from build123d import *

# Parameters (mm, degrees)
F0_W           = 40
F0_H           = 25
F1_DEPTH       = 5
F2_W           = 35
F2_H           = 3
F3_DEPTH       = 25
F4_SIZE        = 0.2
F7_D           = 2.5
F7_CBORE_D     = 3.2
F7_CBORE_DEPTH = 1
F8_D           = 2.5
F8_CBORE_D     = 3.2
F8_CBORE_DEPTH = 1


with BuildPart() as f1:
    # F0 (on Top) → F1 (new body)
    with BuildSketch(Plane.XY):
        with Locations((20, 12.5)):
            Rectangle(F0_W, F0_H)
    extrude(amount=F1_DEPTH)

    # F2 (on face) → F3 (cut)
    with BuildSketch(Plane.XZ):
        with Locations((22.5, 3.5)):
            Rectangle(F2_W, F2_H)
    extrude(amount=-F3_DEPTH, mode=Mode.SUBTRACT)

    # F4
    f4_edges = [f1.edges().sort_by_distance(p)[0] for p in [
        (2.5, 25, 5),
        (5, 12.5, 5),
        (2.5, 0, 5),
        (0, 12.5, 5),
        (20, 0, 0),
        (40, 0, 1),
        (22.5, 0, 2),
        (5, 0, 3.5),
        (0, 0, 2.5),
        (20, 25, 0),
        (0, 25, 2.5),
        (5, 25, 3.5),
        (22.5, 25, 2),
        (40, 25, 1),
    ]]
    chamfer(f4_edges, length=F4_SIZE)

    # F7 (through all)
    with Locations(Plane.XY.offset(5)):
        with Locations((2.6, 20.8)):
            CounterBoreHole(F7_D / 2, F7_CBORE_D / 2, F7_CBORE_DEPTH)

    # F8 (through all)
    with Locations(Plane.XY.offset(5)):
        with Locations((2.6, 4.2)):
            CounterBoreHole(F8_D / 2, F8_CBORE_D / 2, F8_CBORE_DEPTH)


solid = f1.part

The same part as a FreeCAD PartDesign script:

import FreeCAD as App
import Part
import Sketcher

V = App.Vector
Q = App.Units.Quantity


def edges_at(feature, points):
    """Names of the edges that pass closest to the given points."""
    edges = feature.Shape.Edges
    near = lambda p: min(range(len(edges)), key=lambda i: edges[i].distToShape(Part.Vertex(*p))[0])
    return sorted({f"Edge{near(p) + 1}" for p in points})

doc = App.newDocument("Part")
body = doc.addObject("PartDesign::Body", "Body")

# Sketch on XY plane
sketch1 = doc.addObject("Sketcher::SketchObject", "Sketch")
body.addObject(sketch1)
sketch1.AttachmentSupport = (doc.XY_Plane, [""])
sketch1.MapMode = "FlatFace"
sketch1.addGeometry([
    Part.LineSegment(V(0, 25, 0), V(0, 0, 0)),
    Part.LineSegment(V(0, 0, 0), V(40, 0, 0)),
    Part.LineSegment(V(40, 0, 0), V(40, 25, 0)),
    Part.LineSegment(V(40, 25, 0), V(0, 25, 0)),
], False)
sketch1.addConstraint([
    Sketcher.Constraint("Coincident", 0, 2, 1, 1),
    Sketcher.Constraint("Coincident", 1, 2, 2, 1),
    Sketcher.Constraint("Coincident", 2, 2, 3, 1),
    Sketcher.Constraint("Coincident", 3, 2, 0, 1),
    Sketcher.Constraint("Vertical", 0),
    Sketcher.Constraint("Horizontal", 1),
    Sketcher.Constraint("Vertical", 2),
    Sketcher.Constraint("Horizontal", 3),
    Sketcher.Constraint("Coincident", 0, 2, -1, 1),
    Sketcher.Constraint("DistanceX", 1, 1, 1, 2, Q("40 mm")),
    Sketcher.Constraint("DistanceY", 0, 2, 0, 1, Q("25 mm")),
])
pad1 = doc.addObject("PartDesign::Pad", "Pad")
body.addObject(pad1)
pad1.Profile = sketch1
pad1.Length = 5

# Sketch on XZ plane
sketch2 = doc.addObject("Sketcher::SketchObject", "Sketch001")
body.addObject(sketch2)
sketch2.AttachmentSupport = (doc.XZ_Plane, [""])
sketch2.MapMode = "FlatFace"
sketch2.addGeometry([
    Part.LineSegment(V(5, 5, 0), V(5, 2, 0)),
    Part.LineSegment(V(5, 2, 0), V(40, 2, 0)),
    Part.LineSegment(V(40, 2, 0), V(40, 5, 0)),
    Part.LineSegment(V(40, 5, 0), V(5, 5, 0)),
], False)
sketch2.addConstraint([
    Sketcher.Constraint("Coincident", 0, 2, 1, 1),
    Sketcher.Constraint("Coincident", 1, 2, 2, 1),
    Sketcher.Constraint("Coincident", 2, 2, 3, 1),
    Sketcher.Constraint("Coincident", 3, 2, 0, 1),
    Sketcher.Constraint("Vertical", 0),
    Sketcher.Constraint("Horizontal", 1),
    Sketcher.Constraint("Vertical", 2),
    Sketcher.Constraint("Horizontal", 3),
    Sketcher.Constraint("DistanceX", 1, 1, 1, 2, Q("35 mm")),
    Sketcher.Constraint("DistanceY", 0, 2, 0, 1, Q("3 mm")),
    Sketcher.Constraint("DistanceX", -1, 1, 0, 2, Q("5 mm")),
    Sketcher.Constraint("DistanceY", -1, 1, 0, 2, Q("2 mm")),
])
pocket1 = doc.addObject("PartDesign::Pocket", "Pocket")
body.addObject(pocket1)
pocket1.Profile = sketch2
pocket1.Length = 25
doc.recompute()

chamfer = doc.addObject("PartDesign::Chamfer", "Chamfer")
body.addObject(chamfer)
chamfer.Base = (pocket1, edges_at(pocket1, [
    (2.5, 25, 5),
    (5, 12.5, 5),
    (2.5, 0, 5),
    (0, 12.5, 5),
    (20, 0, 0),
    (40, 0, 1),
    (22.5, 0, 2),
    (5, 0, 3.5),
    (0, 0, 2.5),
    (20, 25, 0),
    (0, 25, 2.5),
    (5, 25, 3.5),
    (22.5, 25, 2),
    (40, 25, 1),
]))
chamfer.Size = 0.2

# Sketch on XY plane
sketch3 = doc.addObject("Sketcher::SketchObject", "Sketch002")
body.addObject(sketch3)
sketch3.AttachmentSupport = (doc.XY_Plane, [""])
sketch3.MapMode = "FlatFace"
sketch3.AttachmentOffset = App.Placement(V(0, 0, 5), App.Rotation())
sketch3.addGeometry(Part.Circle(V(2.6, 20.8, 0), V(0, 0, 1), 1.2), False)
sketch3.addConstraint([
    Sketcher.Constraint("Diameter", 0, Q("2.5 mm")),
    Sketcher.Constraint("DistanceX", -1, 1, 0, 3, Q("2.6 mm")),
    Sketcher.Constraint("DistanceY", -1, 1, 0, 3, Q("20.8 mm")),
])
doc.recompute()
hole = doc.addObject("PartDesign::Hole", "Hole")
body.addObject(hole)
hole.Profile = sketch3
hole.ThreadType = "None"
hole.Diameter = 2.5
hole.DepthType = "ThroughAll"
hole.HoleCutType = "Counterbore"
hole.HoleCutDiameter = 3.2
hole.HoleCutDepth = 1

# Sketch on XY plane
sketch4 = doc.addObject("Sketcher::SketchObject", "Sketch003")
body.addObject(sketch4)
sketch4.AttachmentSupport = (doc.XY_Plane, [""])
sketch4.MapMode = "FlatFace"
sketch4.AttachmentOffset = App.Placement(V(0, 0, 5), App.Rotation())
sketch4.addGeometry(Part.Circle(V(2.6, 4.2, 0), V(0, 0, 1), 1.2), False)
sketch4.addConstraint([
    Sketcher.Constraint("Diameter", 0, Q("2.5 mm")),
    Sketcher.Constraint("DistanceX", -1, 1, 0, 3, Q("2.6 mm")),
    Sketcher.Constraint("DistanceY", -1, 1, 0, 3, Q("4.2 mm")),
])
doc.recompute()
hole2 = doc.addObject("PartDesign::Hole", "Hole001")
body.addObject(hole2)
hole2.Profile = sketch4
hole2.ThreadType = "None"
hole2.Diameter = 2.5
hole2.DepthType = "ThroughAll"
hole2.HoleCutType = "Counterbore"
hole2.HoleCutDiameter = 3.2
hole2.HoleCutDepth = 1

doc.recompute()
